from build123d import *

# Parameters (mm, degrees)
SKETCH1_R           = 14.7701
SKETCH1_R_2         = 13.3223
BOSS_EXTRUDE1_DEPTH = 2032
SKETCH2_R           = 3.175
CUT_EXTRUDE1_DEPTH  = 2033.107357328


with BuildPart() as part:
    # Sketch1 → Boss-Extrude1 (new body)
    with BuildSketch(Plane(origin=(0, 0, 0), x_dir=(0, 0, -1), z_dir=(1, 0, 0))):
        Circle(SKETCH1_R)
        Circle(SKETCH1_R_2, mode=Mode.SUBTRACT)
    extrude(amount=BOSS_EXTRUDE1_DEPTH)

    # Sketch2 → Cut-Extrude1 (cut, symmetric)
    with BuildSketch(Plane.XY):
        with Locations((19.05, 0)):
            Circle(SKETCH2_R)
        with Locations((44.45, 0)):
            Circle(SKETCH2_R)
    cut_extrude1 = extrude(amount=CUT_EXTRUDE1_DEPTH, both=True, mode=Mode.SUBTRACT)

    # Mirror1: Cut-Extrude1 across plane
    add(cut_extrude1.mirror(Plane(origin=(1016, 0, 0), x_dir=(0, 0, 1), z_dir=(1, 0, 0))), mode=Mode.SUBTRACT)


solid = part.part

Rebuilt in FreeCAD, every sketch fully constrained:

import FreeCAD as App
import Part
import Sketcher
Q = App.Units.Quantity

doc = App.newDocument("Part")
params = doc.addObject("Spreadsheet::Sheet", "Params")
for row, (alias, value) in enumerate([
    ("sketch1_diameter", "1.163 in"),
    ("sketch1_diameter2", "1.049 in"),
    ("pad1_length", "80 in"),
    ("sketch2_diameter", "0.25 in"),
    ("pocket1_length", "4066.214715 mm"),
], start=1):
    params.set(f"A{row}", alias)
    params.set(f"B{row}", "=" + value)
    params.setAlias(f"B{row}", alias)

body = doc.addObject("PartDesign::Body", "Body")

# Sketch on YZ plane
sketch1 = body.newObject("Sketcher::SketchObject", "Sketch")
sketch1.AttachmentSupport = (doc.getObject("YZ_Plane"), [""])
sketch1.MapMode = "FlatFace"
sketch1.addGeometry([
    Part.Circle(App.Vector(0, 0, 0), App.Vector(0, 0, 1), 14.7701),
    Part.Circle(App.Vector(0, 0, 0), App.Vector(0, 0, 1), 13.3223),
], False)
sketch1.addConstraint([
    Sketcher.Constraint("Coincident", 0, 3, -1, 1),
    Sketcher.Constraint("Coincident", 1, 3, -1, 1),
    Sketcher.Constraint("Diameter", 0, Q("1.163 in")),
    Sketcher.Constraint("Diameter", 1, Q("1.049 in")),
])
sketch1.setExpression("Constraints[2]", "Params.sketch1_diameter")
sketch1.setExpression("Constraints[3]", "Params.sketch1_diameter2")
pad1 = body.newObject("PartDesign::Pad", "Pad")
pad1.Profile = sketch1
pad1.setExpression("Length", "Params.pad1_length")

# Sketch on XY plane
sketch2 = body.newObject("Sketcher::SketchObject", "Sketch001")
sketch2.AttachmentSupport = (doc.getObject("XY_Plane"), [""])
sketch2.MapMode = "FlatFace"
sketch2.addGeometry([
    Part.Circle(App.Vector(19.05, 0, 0), App.Vector(0, 0, 1), 3.175),
    Part.Circle(App.Vector(44.45, 0, 0), App.Vector(0, 0, 1), 3.175),
], False)
sketch2.addConstraint([
    Sketcher.Constraint("Equal", 0, 1),
    Sketcher.Constraint("PointOnObject", 0, 3, -1),
    Sketcher.Constraint("PointOnObject", 1, 3, -1),
    Sketcher.Constraint("Diameter", 0, Q("0.25 in")),
    Sketcher.Constraint("DistanceX", 0, 3, 1, 3, Q("1 in")),
    Sketcher.Constraint("DistanceX", -1, 1, 0, 3, Q("0.75 in")),
])
sketch2.setExpression("Constraints[3]", "Params.sketch2_diameter")
pocket1 = body.newObject("PartDesign::Pocket", "Pocket")
pocket1.Profile = sketch2
pocket1.setExpression("Length", "Params.pocket1_length")
pocket1.Midplane = True
doc.recompute()

datumplane = body.newObject("PartDesign::Plane", "DatumPlane")
datumplane.AttachmentSupport = (doc.getObject("YZ_Plane"), [""])
datumplane.MapMode = "FlatFace"
datumplane.AttachmentOffset = App.Placement(App.Vector(0, 0, 40 * 25.4), App.Rotation())
mirrored = body.newObject("PartDesign::Mirrored", "Mirrored")
mirrored.Originals = [pocket1]
mirrored.MirrorPlane = (datumplane, [""])
body.Tip = mirrored

doc.recompute()
